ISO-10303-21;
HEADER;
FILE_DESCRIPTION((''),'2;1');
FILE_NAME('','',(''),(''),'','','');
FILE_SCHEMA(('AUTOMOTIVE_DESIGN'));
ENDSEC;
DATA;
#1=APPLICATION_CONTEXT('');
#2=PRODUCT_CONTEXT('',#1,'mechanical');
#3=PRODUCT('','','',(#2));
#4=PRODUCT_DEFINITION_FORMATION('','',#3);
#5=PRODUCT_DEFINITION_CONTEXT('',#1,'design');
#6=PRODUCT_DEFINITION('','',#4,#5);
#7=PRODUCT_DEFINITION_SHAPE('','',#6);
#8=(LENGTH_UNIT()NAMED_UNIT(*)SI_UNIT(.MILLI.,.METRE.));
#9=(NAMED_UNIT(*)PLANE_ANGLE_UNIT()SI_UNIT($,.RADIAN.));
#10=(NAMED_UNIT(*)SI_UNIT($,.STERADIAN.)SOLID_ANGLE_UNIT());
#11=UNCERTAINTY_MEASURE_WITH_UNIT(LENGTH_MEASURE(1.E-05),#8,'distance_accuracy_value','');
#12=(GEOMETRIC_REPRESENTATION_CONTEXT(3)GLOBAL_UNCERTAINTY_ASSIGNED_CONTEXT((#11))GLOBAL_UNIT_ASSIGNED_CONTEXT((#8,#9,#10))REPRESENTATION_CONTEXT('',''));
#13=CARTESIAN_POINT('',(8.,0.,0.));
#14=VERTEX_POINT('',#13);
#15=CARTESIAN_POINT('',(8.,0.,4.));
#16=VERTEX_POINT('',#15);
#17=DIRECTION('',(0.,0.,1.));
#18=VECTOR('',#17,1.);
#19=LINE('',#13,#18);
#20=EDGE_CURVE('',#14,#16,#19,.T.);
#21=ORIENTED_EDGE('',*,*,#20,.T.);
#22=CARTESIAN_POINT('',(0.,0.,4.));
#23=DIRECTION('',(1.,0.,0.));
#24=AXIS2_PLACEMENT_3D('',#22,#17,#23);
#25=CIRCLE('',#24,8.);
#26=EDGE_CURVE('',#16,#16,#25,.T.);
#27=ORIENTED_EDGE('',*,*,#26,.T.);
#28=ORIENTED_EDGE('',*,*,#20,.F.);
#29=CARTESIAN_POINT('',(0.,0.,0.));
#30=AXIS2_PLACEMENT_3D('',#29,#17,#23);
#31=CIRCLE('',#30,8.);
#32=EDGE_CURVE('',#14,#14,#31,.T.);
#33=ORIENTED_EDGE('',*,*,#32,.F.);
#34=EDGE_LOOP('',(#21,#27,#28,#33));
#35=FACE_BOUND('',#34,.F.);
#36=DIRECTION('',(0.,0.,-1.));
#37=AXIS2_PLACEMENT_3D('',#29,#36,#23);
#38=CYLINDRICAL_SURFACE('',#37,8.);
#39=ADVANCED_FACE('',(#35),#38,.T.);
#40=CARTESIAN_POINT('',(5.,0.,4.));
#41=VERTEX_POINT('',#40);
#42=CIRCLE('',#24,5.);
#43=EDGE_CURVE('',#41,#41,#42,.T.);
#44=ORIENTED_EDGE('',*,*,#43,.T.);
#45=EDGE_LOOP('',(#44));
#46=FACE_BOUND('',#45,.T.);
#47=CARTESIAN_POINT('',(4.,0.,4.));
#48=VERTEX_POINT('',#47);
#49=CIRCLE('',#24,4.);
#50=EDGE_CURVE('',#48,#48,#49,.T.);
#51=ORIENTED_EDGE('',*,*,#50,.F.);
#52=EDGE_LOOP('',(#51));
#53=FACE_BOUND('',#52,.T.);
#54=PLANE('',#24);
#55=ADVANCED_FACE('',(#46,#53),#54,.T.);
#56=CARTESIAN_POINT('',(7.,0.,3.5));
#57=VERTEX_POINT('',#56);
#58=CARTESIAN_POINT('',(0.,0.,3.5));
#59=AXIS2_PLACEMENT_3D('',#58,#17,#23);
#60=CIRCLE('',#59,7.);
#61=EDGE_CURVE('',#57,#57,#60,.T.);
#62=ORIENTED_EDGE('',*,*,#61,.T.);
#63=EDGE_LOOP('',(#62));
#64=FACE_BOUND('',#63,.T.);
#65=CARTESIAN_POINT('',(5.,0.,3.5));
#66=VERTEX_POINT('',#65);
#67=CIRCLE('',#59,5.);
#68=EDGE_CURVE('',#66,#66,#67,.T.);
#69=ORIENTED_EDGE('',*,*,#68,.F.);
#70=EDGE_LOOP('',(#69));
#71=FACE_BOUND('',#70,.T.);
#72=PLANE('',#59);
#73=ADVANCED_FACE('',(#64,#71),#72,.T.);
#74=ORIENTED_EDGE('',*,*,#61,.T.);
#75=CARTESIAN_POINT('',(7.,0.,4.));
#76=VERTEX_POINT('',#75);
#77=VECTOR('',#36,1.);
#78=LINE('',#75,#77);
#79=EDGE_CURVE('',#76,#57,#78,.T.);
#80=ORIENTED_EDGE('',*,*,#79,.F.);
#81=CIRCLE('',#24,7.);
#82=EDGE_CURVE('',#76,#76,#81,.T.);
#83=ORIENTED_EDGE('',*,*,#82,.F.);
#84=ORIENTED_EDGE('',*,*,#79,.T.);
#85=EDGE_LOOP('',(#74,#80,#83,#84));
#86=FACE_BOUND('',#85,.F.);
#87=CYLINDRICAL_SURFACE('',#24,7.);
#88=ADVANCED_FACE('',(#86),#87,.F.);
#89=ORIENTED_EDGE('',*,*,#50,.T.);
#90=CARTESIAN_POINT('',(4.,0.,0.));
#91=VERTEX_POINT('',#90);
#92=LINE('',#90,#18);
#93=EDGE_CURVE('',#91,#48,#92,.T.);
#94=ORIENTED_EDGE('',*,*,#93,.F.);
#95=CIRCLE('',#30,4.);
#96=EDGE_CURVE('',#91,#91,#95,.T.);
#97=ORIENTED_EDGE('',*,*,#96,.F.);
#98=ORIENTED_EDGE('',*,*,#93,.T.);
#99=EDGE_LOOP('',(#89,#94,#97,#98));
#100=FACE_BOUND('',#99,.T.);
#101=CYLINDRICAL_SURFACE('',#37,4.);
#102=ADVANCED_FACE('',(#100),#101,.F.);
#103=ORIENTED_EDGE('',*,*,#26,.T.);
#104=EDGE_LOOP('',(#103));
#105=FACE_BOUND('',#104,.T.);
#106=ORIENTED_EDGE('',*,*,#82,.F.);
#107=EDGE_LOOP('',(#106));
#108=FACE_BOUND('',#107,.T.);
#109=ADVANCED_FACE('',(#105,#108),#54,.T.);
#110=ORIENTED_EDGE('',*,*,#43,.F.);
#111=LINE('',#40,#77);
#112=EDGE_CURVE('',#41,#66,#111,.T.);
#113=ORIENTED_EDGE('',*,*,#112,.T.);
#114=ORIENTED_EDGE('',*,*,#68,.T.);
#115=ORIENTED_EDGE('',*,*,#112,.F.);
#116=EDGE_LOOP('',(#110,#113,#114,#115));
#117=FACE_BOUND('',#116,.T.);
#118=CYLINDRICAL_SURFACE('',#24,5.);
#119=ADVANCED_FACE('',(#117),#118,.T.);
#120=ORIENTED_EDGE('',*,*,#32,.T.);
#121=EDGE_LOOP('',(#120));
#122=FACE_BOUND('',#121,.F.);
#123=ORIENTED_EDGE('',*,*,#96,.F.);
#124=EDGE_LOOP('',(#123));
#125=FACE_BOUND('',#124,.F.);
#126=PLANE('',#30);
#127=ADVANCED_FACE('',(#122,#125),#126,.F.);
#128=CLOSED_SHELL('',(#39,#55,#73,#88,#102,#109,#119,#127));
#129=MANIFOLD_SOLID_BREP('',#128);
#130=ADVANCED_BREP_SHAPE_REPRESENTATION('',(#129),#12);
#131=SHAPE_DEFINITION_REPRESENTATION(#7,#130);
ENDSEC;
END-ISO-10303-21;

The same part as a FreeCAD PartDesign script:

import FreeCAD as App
import Part
import Sketcher
Q = App.Units.Quantity

doc = App.newDocument("Part")
params = doc.addObject("Spreadsheet::Sheet", "Params")
for row, (alias, value) in enumerate([
    ("sketch1_diameter", "16 mm"),
    ("sketch1_diameter2", "8 mm"),
    ("pad1_length", "4 mm"),
    ("sketch2_diameter", "14 mm"),
    ("sketch2_diameter2", "10 mm"),
    ("pocket1_length", "0.5 mm"),
    ("sketch3_diameter", "40 mm"),
    ("sketch3_diameter2", "32 mm"),
    ("pocket2_length", "0.5 mm"),
], start=1):
    params.set(f"A{row}", alias)
    params.set(f"B{row}", "=" + value)
    params.setAlias(f"B{row}", alias)

body = doc.addObject("PartDesign::Body", "Body")

sketch1 = doc.addObject("Sketcher::SketchObject", "Sketch")
body.addObject(sketch1)
sketch1.AttachmentSupport = (doc.XY_Plane, [""])
sketch1.MapMode = "FlatFace"
sketch1.addGeometry([
    Part.Circle(App.Vector(0, 0, 0), App.Vector(0, 0, 1), 8),
    Part.Circle(App.Vector(0, 0, 0), App.Vector(0, 0, 1), 4),
], False)
sketch1.addConstraint([
    Sketcher.Constraint("Coincident", 0, 3, -1, 1),
    Sketcher.Constraint("Coincident", 1, 3, -1, 1),
    Sketcher.Constraint("Diameter", 0, Q("16 mm")),
    Sketcher.Constraint("Diameter", 1, Q("8 mm")),
])
sketch1.setExpression("Constraints[2]", "Params.sketch1_diameter")
sketch1.setExpression("Constraints[3]", "Params.sketch1_diameter2")
pad1 = doc.addObject("PartDesign::Pad", "Pad")
body.addObject(pad1)
pad1.Profile = sketch1
pad1.setExpression("Length", "Params.pad1_length")

sketch2 = doc.addObject("Sketcher::SketchObject", "Sketch001")
body.addObject(sketch2)
sketch2.AttachmentSupport = (doc.XY_Plane, [""])
sketch2.MapMode = "FlatFace"
sketch2.AttachmentOffset = App.Placement(App.Vector(0, 0, 4), App.Rotation())
sketch2.addGeometry([
    Part.Circle(App.Vector(0, 0, 0), App.Vector(0, 0, 1), 7),
    Part.Circle(App.Vector(0, 0, 0), App.Vector(0, 0, 1), 5),
], False)
sketch2.addConstraint([
    Sketcher.Constraint("Coincident", 0, 3, -1, 1),
    Sketcher.Constraint("Coincident", 1, 3, -1, 1),
    Sketcher.Constraint("Diameter", 0, Q("14 mm")),
    Sketcher.Constraint("Diameter", 1, Q("10 mm")),
])
sketch2.setExpression("Constraints[2]", "Params.sketch2_diameter")
sketch2.setExpression("Constraints[3]", "Params.sketch2_diameter2")
pocket1 = doc.addObject("PartDesign::Pocket", "Pocket")
body.addObject(pocket1)
pocket1.Profile = sketch2
pocket1.setExpression("Length", "Params.pocket1_length")

sketch3 = doc.addObject("Sketcher::SketchObject", "Sketch002")
body.addObject(sketch3)
sketch3.AttachmentSupport = (doc.XY_Plane, [""])
sketch3.MapMode = "FlatFace"
sketch3.addGeometry([
    Part.Circle(App.Vector(0, 0, 0), App.Vector(0, 0, 1), 20),
    Part.Circle(App.Vector(0, 0, 0), App.Vector(0, 0, 1), 16),
], False)
sketch3.addConstraint([
    Sketcher.Constraint("Coincident", 0, 3, -1, 1),
    Sketcher.Constraint("Coincident", 1, 3, -1, 1),
    Sketcher.Constraint("Diameter", 0, Q("40 mm")),
    Sketcher.Constraint("Diameter", 1, Q("32 mm")),
])
sketch3.setExpression("Constraints[2]", "Params.sketch3_diameter")
sketch3.setExpression("Constraints[3]", "Params.sketch3_diameter2")
pocket2 = doc.addObject("PartDesign::Pocket", "Pocket001")
body.addObject(pocket2)
pocket2.Profile = sketch3
pocket2.setExpression("Length", "Params.pocket2_length")
pocket2.Reversed = True

doc.recompute()
